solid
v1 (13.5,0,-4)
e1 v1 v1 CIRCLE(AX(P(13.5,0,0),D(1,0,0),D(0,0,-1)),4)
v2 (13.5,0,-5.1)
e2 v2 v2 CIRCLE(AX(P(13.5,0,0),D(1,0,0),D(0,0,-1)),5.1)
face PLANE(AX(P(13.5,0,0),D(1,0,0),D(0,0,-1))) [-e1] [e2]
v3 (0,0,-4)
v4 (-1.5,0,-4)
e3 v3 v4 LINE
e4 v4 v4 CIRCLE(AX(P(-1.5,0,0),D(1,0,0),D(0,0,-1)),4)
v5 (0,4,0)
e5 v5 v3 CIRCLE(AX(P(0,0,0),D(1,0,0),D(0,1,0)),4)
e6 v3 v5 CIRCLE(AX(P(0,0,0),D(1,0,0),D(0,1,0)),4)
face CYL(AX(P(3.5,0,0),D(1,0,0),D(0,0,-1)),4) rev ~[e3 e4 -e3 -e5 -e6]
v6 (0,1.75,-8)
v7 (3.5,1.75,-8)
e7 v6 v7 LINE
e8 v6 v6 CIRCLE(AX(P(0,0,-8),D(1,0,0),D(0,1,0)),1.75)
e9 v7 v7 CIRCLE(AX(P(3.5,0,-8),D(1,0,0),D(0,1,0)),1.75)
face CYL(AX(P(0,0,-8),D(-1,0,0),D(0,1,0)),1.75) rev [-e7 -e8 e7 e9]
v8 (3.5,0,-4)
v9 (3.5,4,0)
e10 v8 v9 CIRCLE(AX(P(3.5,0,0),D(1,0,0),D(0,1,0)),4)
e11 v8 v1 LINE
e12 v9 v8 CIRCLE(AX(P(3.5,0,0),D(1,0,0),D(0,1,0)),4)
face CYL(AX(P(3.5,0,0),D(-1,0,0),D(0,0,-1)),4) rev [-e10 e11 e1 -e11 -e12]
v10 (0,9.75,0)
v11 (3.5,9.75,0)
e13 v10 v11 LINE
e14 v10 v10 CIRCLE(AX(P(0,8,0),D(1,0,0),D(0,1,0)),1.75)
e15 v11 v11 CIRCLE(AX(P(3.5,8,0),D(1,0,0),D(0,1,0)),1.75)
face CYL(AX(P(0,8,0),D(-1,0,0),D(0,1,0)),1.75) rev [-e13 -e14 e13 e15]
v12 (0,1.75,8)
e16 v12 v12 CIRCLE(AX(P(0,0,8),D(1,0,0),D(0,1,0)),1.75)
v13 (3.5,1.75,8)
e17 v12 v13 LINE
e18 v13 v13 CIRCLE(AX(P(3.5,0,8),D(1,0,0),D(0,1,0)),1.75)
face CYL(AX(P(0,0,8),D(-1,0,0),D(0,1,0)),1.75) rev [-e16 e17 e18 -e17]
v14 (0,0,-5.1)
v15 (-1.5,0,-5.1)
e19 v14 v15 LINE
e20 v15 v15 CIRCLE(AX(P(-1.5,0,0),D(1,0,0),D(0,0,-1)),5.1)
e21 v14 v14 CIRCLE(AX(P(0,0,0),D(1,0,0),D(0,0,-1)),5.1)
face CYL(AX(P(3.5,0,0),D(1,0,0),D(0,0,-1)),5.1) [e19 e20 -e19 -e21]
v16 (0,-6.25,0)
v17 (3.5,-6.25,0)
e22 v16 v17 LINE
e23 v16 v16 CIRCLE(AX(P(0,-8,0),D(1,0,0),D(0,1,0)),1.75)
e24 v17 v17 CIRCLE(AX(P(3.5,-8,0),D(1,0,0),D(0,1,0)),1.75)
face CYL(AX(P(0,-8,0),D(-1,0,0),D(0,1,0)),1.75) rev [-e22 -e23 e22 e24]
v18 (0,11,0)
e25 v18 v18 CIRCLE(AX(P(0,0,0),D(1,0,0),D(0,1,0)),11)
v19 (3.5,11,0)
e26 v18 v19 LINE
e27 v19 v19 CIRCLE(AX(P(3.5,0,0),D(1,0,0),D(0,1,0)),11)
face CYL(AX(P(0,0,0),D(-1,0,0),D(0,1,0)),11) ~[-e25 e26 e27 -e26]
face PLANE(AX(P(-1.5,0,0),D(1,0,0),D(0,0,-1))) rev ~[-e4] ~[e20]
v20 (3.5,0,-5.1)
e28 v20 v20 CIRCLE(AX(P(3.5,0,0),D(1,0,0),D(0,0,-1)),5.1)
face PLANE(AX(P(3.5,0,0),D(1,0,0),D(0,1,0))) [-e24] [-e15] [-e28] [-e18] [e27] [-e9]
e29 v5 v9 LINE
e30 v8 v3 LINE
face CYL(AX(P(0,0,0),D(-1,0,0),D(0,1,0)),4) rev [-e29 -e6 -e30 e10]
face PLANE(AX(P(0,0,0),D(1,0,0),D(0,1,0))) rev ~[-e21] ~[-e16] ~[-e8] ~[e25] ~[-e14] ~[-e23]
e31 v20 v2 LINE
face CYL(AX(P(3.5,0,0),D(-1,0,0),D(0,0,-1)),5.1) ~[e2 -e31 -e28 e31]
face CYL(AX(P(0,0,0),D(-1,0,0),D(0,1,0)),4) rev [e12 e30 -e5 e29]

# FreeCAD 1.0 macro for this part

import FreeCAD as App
import Part
import Sketcher
Q = App.Units.Quantity

doc = App.newDocument("Part")
body = doc.addObject("PartDesign::Body", "Body")

# Sketch on YZ plane
sketch1 = body.newObject("Sketcher::SketchObject", "Sketch")
sketch1.AttachmentSupport = (doc.getObject("YZ_Plane"), [""])
sketch1.MapMode = "FlatFace"
sketch1.addGeometry(Part.Circle(App.Vector(0, 0, 0), App.Vector(0, 0, 1), 11), False)
sketch1.addGeometry(Part.Circle(App.Vector(0, -8, 0), App.Vector(0, 0, 1), 1.8), False)
sketch1.addGeometry(Part.Circle(App.Vector(-8, 0, 0), App.Vector(0, 0, 1), 1.8), False)
sketch1.addGeometry(Part.Circle(App.Vector(0, 0, 0), App.Vector(0, 0, 1), 4), False)
sketch1.addGeometry(Part.Circle(App.Vector(8, 0, 0), App.Vector(0, 0, 1), 1.8), False)
sketch1.addGeometry(Part.Circle(App.Vector(0, 8, 0), App.Vector(0, 0, 1), 1.8), False)
sketch1.addConstraint(Sketcher.Constraint("Coincident", 0, 3, -1, 1))
sketch1.addConstraint(Sketcher.Constraint("Coincident", 3, 3, -1, 1))
sketch1.addConstraint(Sketcher.Constraint("Equal", 1, 2))
sketch1.addConstraint(Sketcher.Constraint("Equal", 2, 4))
sketch1.addConstraint(Sketcher.Constraint("Equal", 4, 5))
sketch1.addConstraint(Sketcher.Constraint("Symmetric", 2, 3, 4, 3, -1, 1))
sketch1.addConstraint(Sketcher.Constraint("Symmetric", 1, 3, 5, 3, -1, 1))
sketch1.addConstraint(Sketcher.Constraint("PointOnObject", 1, 3, -2))
sketch1.addConstraint(Sketcher.Constraint("PointOnObject", 2, 3, -1))
sketch1.addConstraint(Sketcher.Constraint("Diameter", 0, Q("22 mm")))
sketch1.addConstraint(Sketcher.Constraint("Diameter", 3, Q("8 mm")))
sketch1.addConstraint(Sketcher.Constraint("Diameter", 1, Q("3.5 mm")))
sketch1.addConstraint(Sketcher.Constraint("DistanceY", 1, 3, -1, 1, Q("8 mm")))
sketch1.addConstraint(Sketcher.Constraint("DistanceX", 2, 3, -1, 1, Q("8 mm")))
pad1 = body.newObject("PartDesign::Pad", "Pad")
pad1.Profile = sketch1
pad1.Length = 3.5

# Sketch on YZ plane
sketch2 = body.newObject("Sketcher::SketchObject", "Sketch001")
sketch2.AttachmentSupport = (doc.getObject("YZ_Plane"), [""])
sketch2.MapMode = "FlatFace"
sketch2.AttachmentOffset = App.Placement(App.Vector(0, 0, 3.5), App.Rotation())
sketch2.addGeometry(Part.Circle(App.Vector(0, 0, 0), App.Vector(0, 0, 1), 5.1), False)
sketch2.addGeometry(Part.Circle(App.Vector(0, 0, 0), App.Vector(0, 0, 1), 4), False)
sketch2.addConstraint(Sketcher.Constraint("Coincident", 0, 3, -1, 1))
sketch2.addConstraint(Sketcher.Constraint("Coincident", 1, 3, -1, 1))
sketch2.addConstraint(Sketcher.Constraint("Diameter", 1, Q("8 mm")))
sketch2.addConstraint(Sketcher.Constraint("Diameter", 0, Q("10.2 mm")))
pad2 = body.newObject("PartDesign::Pad", "Pad001")
pad2.Profile = sketch2
pad2.Type = "TwoLengths"
pad2.Length = 10
pad2.Length2 = 5

doc.recompute()
